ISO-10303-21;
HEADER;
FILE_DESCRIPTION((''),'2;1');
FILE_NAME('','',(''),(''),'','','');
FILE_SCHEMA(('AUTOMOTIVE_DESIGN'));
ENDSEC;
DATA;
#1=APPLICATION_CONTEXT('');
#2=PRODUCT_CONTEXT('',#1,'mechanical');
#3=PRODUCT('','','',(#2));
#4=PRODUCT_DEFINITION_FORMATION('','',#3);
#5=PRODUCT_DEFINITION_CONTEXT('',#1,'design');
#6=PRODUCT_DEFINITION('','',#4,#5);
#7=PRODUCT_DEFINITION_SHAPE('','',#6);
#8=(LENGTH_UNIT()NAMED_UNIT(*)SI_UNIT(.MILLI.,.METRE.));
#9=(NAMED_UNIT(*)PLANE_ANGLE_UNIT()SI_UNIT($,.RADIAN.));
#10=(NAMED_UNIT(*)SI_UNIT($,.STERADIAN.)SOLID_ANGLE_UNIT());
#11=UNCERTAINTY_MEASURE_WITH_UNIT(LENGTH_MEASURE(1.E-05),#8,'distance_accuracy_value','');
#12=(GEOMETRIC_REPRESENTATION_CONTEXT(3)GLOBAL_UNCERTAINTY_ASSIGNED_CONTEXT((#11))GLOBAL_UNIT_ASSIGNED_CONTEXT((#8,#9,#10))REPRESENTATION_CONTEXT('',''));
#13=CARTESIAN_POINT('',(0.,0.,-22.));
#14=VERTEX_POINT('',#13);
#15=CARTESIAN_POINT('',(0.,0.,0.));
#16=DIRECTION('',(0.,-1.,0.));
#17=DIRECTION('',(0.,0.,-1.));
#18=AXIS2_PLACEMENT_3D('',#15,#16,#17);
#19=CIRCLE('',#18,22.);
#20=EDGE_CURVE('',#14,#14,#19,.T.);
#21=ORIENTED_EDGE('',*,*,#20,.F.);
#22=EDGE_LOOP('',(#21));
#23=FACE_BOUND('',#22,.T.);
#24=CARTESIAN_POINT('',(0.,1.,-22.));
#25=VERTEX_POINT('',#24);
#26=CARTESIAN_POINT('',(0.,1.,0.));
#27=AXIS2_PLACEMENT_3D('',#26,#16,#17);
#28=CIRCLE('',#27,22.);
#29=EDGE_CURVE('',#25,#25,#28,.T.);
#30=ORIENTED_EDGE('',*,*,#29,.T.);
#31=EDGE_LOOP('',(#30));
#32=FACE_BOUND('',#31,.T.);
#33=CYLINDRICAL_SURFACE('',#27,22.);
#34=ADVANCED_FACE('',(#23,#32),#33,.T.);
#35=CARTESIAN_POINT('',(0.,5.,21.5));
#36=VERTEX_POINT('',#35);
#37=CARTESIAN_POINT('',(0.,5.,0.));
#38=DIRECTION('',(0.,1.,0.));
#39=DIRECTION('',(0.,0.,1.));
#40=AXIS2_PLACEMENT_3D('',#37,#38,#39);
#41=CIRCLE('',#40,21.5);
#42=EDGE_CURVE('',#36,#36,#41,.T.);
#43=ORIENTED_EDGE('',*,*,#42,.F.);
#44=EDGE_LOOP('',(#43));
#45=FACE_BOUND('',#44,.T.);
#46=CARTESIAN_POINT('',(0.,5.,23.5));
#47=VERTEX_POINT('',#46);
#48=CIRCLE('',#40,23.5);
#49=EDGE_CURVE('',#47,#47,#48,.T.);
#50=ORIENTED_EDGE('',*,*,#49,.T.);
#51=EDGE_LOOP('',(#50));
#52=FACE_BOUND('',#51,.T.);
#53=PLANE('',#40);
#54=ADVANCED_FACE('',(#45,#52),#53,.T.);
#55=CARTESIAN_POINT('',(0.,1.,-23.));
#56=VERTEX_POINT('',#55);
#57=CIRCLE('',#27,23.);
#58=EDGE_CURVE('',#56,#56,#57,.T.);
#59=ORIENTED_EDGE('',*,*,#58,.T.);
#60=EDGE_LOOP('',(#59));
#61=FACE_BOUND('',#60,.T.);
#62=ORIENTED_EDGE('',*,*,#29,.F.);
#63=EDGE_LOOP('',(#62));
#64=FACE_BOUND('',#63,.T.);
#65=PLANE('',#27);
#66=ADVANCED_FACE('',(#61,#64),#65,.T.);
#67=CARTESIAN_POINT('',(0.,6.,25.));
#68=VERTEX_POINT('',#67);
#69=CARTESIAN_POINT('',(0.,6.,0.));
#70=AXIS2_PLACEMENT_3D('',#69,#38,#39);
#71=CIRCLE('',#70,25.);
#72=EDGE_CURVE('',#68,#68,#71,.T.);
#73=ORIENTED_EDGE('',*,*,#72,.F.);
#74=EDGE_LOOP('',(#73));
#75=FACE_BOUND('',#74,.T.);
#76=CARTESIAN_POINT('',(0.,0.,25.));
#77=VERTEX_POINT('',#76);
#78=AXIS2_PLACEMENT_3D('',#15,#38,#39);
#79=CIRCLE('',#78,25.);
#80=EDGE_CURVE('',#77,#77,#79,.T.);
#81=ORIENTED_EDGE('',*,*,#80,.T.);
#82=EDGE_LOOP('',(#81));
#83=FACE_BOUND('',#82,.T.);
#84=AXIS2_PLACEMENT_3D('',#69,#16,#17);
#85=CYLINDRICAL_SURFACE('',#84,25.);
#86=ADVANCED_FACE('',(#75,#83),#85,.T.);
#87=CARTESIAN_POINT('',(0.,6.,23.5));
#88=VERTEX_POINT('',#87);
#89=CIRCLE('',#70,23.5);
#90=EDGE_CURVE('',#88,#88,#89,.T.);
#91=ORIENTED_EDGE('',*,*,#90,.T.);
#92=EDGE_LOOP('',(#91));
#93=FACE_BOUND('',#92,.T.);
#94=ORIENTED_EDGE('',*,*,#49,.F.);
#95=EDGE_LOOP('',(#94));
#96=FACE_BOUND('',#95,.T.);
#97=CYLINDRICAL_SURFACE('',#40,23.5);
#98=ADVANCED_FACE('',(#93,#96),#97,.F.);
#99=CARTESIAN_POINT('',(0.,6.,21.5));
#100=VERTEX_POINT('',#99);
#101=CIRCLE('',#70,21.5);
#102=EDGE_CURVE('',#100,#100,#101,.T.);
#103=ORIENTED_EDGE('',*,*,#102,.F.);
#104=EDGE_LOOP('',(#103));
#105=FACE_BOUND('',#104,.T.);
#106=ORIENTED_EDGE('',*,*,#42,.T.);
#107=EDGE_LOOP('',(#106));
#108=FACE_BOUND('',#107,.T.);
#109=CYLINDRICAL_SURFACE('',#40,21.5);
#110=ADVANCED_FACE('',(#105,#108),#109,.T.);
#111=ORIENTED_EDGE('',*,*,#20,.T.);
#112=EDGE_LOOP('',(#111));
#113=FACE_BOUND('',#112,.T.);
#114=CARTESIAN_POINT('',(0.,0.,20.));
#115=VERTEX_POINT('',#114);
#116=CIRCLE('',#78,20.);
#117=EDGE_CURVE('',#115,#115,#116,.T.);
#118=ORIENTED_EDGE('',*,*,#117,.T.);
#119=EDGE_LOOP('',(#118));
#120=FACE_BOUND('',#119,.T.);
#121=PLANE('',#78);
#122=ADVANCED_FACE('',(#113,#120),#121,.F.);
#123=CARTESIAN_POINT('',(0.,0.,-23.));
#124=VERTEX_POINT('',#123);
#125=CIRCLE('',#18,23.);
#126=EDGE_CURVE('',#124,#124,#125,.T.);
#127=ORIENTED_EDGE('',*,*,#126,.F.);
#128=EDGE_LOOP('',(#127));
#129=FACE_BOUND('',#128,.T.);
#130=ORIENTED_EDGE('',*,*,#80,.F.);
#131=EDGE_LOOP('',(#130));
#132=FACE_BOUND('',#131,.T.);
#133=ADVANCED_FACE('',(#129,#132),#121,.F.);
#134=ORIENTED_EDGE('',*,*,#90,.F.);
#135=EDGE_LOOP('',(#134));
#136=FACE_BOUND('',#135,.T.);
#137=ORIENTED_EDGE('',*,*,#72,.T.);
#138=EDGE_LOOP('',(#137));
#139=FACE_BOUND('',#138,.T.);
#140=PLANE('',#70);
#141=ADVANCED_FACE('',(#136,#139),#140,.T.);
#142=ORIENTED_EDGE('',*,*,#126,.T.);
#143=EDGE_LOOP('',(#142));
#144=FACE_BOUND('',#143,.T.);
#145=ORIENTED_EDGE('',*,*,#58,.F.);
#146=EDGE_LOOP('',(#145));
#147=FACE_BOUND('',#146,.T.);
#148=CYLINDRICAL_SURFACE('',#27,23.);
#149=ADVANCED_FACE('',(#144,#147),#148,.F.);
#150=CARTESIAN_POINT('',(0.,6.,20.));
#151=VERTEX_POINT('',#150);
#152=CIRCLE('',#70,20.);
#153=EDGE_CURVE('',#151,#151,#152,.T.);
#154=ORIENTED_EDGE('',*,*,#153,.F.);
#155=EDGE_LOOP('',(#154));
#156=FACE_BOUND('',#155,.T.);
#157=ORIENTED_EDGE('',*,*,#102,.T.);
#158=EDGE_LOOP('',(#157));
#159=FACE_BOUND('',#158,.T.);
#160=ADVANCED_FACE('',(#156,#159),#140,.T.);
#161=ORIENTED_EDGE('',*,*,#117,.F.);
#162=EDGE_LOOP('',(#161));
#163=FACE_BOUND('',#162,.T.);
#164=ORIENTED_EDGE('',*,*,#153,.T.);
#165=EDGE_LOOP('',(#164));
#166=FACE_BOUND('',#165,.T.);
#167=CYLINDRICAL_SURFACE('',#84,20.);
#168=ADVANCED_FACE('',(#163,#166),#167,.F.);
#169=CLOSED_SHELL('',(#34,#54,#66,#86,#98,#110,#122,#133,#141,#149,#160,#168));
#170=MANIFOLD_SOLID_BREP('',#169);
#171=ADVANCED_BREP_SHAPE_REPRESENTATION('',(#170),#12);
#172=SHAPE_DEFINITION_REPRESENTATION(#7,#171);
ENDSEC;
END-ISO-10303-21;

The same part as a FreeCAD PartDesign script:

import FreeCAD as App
import Part
import Sketcher
from FreeCAD import Vector

doc = App.newDocument("Part")
body = doc.addObject("PartDesign::Body", "Body")

sketch1 = doc.addObject("Sketcher::SketchObject", "Sketch")
body.addObject(sketch1)
sketch1.AttachmentSupport = (doc.XZ_Plane, [""])
sketch1.MapMode = "FlatFace"
sketch1.addGeometry(Part.Circle(Vector(0, 0, 0), Vector(0, 0, 1), 25), False)
sketch1.addGeometry(Part.Circle(Vector(0, 0, 0), Vector(0, 0, 1), 20), False)
sketch1.addConstraint(Sketcher.Constraint("Coincident", 0, 3, -1, 1))
sketch1.addConstraint(Sketcher.Constraint("Coincident", 1, 3, -1, 1))
sketch1.addConstraint(Sketcher.Constraint("Diameter", 0, 50.0))
sketch1.addConstraint(Sketcher.Constraint("Diameter", 1, 40.0))
pad1 = doc.addObject("PartDesign::Pad", "Pad")
body.addObject(pad1)
pad1.Profile = sketch1
pad1.Length = 6
pad1.Reversed = True

sketch2 = doc.addObject("Sketcher::SketchObject", "Sketch001")
body.addObject(sketch2)
sketch2.AttachmentSupport = (doc.XZ_Plane, [""])
sketch2.MapMode = "FlatFace"
sketch2.AttachmentOffset = App.Placement(Vector(0, 0, -6), App.Rotation())
sketch2.addGeometry(Part.Circle(Vector(0, 0, 0), Vector(0, 0, 1), 23.5), False)
sketch2.addGeometry(Part.Circle(Vector(0, 0, 0), Vector(0, 0, 1), 21.5), False)
sketch2.addConstraint(Sketcher.Constraint("Coincident", 0, 3, -1, 1))
sketch2.addConstraint(Sketcher.Constraint("Coincident", 1, 3, -1, 1))
sketch2.addConstraint(Sketcher.Constraint("Diameter", 0, 47.0))
sketch2.addConstraint(Sketcher.Constraint("Diameter", 1, 43.0))
pocket1 = doc.addObject("PartDesign::Pocket", "Pocket")
body.addObject(pocket1)
pocket1.Profile = sketch2
pocket1.Length = 1
pocket1.Reversed = True

sketch3 = doc.addObject("Sketcher::SketchObject", "Sketch002")
body.addObject(sketch3)
sketch3.AttachmentSupport = (doc.XZ_Plane, [""])
sketch3.MapMode = "FlatFace"
sketch3.addGeometry(Part.Circle(Vector(0, 0, 0), Vector(0, 0, 1), 23), False)
sketch3.addGeometry(Part.Circle(Vector(0, 0, 0), Vector(0, 0, 1), 22), False)
sketch3.addConstraint(Sketcher.Constraint("Coincident", 0, 3, -1, 1))
sketch3.addConstraint(Sketcher.Constraint("Coincident", 1, 3, -1, 1))
sketch3.addConstraint(Sketcher.Constraint("Diameter", 0, 46.0))
sketch3.addConstraint(Sketcher.Constraint("Diameter", 1, 44.0))
pocket2 = doc.addObject("PartDesign::Pocket", "Pocket001")
body.addObject(pocket2)
pocket2.Profile = sketch3
pocket2.Length = 1

doc.recompute()
